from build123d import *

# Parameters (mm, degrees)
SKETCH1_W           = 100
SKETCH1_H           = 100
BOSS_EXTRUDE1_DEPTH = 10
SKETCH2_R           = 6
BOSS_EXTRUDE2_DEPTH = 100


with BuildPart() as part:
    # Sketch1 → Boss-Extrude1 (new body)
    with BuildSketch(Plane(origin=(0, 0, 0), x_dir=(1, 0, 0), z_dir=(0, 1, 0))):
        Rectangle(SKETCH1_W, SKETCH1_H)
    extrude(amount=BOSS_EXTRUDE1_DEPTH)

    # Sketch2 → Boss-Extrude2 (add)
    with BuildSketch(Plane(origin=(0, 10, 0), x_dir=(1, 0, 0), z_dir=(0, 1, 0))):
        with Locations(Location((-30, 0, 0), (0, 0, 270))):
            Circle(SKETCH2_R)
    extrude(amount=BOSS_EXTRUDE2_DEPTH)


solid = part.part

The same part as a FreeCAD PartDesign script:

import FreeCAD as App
import Part
import Sketcher
from FreeCAD import Vector
Q = App.Units.Quantity

doc = App.newDocument("Part")
params = doc.addObject("Spreadsheet::Sheet", "Params")
for row, (alias, value) in enumerate([
    ("sketch1_width", "100 mm"),
    ("pad1_length", "10 mm"),
    ("sketch2_diameter", "12 mm"),
    ("pad2_length", "100 mm"),
], start=1):
    params.set(f"A{row}", alias)
    params.set(f"B{row}", "=" + value)
    params.setAlias(f"B{row}", alias)

body = doc.addObject("PartDesign::Body", "Body")

# Sketch on XZ plane
sketch1 = doc.addObject("Sketcher::SketchObject", "Sketch")
body.addObject(sketch1)
sketch1.AttachmentSupport = (doc.XZ_Plane, [""])
sketch1.MapMode = "FlatFace"
sketch1.addGeometry(Part.LineSegment(Vector(-50, -50, 0), Vector(-50, 50, 0)), False)
sketch1.addGeometry(Part.LineSegment(Vector(-50, 50, 0), Vector(50, 50, 0)), False)
sketch1.addGeometry(Part.LineSegment(Vector(50, 50, 0), Vector(50, -50, 0)), False)
sketch1.addGeometry(Part.LineSegment(Vector(50, -50, 0), Vector(-50, -50, 0)), False)
sketch1.addConstraint(Sketcher.Constraint("Coincident", 0, 2, 1, 1))
sketch1.addConstraint(Sketcher.Constraint("Coincident", 1, 2, 2, 1))
sketch1.addConstraint(Sketcher.Constraint("Coincident", 2, 2, 3, 1))
sketch1.addConstraint(Sketcher.Constraint("Coincident", 3, 2, 0, 1))
sketch1.addConstraint(Sketcher.Constraint("Vertical", 0))
sketch1.addConstraint(Sketcher.Constraint("Horizontal", 1))
sketch1.addConstraint(Sketcher.Constraint("Vertical", 2))
sketch1.addConstraint(Sketcher.Constraint("Horizontal", 3))
sketch1.addConstraint(Sketcher.Constraint("Symmetric", 0, 2, 2, 2, -1, 1))
sketch1.addConstraint(Sketcher.Constraint("Equal", 3, 0))
sketch1.addConstraint(Sketcher.Constraint("DistanceX", 1, 1, 1, 2, Q("100 mm")))
sketch1.setExpression("Constraints[10]", "Params.sketch1_width")
pad1 = doc.addObject("PartDesign::Pad", "Pad")
body.addObject(pad1)
pad1.Profile = sketch1
pad1.setExpression("Length", "Params.pad1_length")
pad1.Reversed = True

# Sketch on XZ plane
sketch2 = doc.addObject("Sketcher::SketchObject", "Sketch001")
body.addObject(sketch2)
sketch2.AttachmentSupport = (doc.XZ_Plane, [""])
sketch2.MapMode = "FlatFace"
sketch2.AttachmentOffset = App.Placement(Vector(0, 0, -10), App.Rotation())
sketch2.addGeometry(Part.Circle(Vector(-30, 0, 0), Vector(0, 0, 1), 6), False)
sketch2.addConstraint(Sketcher.Constraint("PointOnObject", 0, 3, -1))
sketch2.addConstraint(Sketcher.Constraint("Diameter", 0, Q("12 mm")))
sketch2.addConstraint(Sketcher.Constraint("DistanceX", 0, 3, -1, 1, Q("30 mm")))
sketch2.setExpression("Constraints[1]", "Params.sketch2_diameter")
pad2 = doc.addObject("PartDesign::Pad", "Pad001")
body.addObject(pad2)
pad2.Profile = sketch2
pad2.setExpression("Length", "Params.pad2_length")
pad2.Reversed = True

doc.recompute()
